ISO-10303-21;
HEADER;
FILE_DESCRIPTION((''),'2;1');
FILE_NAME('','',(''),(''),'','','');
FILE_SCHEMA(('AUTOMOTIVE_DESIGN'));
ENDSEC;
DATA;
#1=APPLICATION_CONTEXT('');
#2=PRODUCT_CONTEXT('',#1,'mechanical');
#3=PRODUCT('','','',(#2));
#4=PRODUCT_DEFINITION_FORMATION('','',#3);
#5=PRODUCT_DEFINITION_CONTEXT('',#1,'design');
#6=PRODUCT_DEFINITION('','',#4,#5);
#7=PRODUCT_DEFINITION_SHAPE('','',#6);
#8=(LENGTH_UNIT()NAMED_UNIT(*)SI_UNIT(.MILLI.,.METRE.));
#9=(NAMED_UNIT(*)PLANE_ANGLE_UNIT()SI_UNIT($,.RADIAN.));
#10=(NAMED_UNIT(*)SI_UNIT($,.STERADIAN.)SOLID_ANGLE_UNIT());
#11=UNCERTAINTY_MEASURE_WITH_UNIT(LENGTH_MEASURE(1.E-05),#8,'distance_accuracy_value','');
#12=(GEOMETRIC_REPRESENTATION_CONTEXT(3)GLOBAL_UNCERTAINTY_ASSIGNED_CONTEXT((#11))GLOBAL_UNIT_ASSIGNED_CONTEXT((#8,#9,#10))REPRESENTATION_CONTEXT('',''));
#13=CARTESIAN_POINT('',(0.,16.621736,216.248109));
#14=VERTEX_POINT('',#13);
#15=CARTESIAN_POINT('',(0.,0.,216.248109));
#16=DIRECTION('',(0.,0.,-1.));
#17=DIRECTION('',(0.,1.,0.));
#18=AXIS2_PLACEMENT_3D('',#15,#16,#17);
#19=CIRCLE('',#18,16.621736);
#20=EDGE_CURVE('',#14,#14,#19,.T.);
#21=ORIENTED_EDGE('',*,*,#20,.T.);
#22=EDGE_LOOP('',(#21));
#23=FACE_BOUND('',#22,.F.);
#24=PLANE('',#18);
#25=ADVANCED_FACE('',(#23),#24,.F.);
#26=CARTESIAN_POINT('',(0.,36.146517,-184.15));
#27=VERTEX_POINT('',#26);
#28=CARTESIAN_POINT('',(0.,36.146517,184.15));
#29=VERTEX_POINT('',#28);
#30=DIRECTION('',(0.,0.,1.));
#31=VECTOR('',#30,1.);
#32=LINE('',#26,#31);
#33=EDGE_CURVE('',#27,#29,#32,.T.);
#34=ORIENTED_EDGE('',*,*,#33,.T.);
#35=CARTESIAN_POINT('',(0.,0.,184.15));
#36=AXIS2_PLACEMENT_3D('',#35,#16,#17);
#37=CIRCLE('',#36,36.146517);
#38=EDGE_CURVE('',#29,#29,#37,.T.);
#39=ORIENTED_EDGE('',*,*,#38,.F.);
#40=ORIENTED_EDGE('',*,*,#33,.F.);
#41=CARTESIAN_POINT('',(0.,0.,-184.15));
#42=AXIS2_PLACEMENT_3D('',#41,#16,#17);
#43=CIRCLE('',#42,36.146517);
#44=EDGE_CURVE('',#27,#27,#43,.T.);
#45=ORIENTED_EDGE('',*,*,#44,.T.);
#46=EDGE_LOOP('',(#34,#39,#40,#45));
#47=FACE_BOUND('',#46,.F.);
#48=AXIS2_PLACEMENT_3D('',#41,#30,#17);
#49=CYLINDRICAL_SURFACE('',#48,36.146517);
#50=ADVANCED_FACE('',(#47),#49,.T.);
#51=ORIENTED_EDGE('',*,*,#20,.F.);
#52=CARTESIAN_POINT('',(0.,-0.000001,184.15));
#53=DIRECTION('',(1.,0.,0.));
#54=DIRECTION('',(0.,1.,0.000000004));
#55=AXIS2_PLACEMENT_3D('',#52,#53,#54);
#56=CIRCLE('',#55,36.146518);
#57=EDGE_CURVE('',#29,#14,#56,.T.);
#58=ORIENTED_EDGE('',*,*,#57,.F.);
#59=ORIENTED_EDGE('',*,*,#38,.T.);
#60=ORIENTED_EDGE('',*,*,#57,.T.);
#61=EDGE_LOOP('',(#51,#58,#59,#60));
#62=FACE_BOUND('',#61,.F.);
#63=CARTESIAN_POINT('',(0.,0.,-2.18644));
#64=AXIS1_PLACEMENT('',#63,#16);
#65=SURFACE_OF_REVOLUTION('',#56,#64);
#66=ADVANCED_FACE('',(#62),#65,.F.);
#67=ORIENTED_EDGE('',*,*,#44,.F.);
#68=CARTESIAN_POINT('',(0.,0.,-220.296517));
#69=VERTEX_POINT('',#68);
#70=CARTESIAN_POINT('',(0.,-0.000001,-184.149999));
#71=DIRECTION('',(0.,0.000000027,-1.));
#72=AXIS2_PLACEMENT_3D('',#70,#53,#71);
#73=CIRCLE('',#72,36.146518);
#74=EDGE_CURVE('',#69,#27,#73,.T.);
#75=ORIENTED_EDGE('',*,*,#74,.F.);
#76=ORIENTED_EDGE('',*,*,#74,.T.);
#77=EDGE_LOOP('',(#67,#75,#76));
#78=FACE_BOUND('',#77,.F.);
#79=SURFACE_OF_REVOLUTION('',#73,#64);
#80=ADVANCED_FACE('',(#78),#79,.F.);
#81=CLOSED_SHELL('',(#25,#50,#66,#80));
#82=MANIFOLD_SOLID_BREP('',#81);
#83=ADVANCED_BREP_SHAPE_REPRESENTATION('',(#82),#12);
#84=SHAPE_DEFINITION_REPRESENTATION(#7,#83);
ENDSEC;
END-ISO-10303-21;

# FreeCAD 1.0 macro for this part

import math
import FreeCAD as App
import Part
import Sketcher

V = App.Vector
Q = App.Units.Quantity

doc = App.newDocument("Part")
body = doc.addObject("PartDesign::Body", "Body")

sketch1 = body.newObject("Sketcher::SketchObject", "Sketch")
sketch1.AttachmentSupport = (doc.getObject("YZ_Plane"), [""])
sketch1.MapMode = "FlatFace"
sketch1.addGeometry([
    Part.ArcOfCircle(Part.Circle(V(0, -184, 0), V(0, 0, 1), 36), math.radians(-90), math.radians(0)),
    Part.LineSegment(V(36, -184, 0), V(36, 184, 0)),
    Part.ArcOfCircle(Part.Circle(V(0, 184, 0), V(0, 0, 1), 36), math.radians(0), math.radians(63)),
    Part.LineSegment(V(17, 216, 0), V(0, 216, 0)),
    Part.LineSegment(V(0, 216, 0), V(0, -220, 0)),
], False)
sketch1.addConstraint([
    Sketcher.Constraint("Tangent", 0, 2, 1, 1),
    Sketcher.Constraint("Tangent", 1, 2, 2, 1),
    Sketcher.Constraint("Coincident", 2, 2, 3, 1),
    Sketcher.Constraint("Coincident", 3, 2, 4, 1),
    Sketcher.Constraint("Coincident", 4, 2, 0, 1),
    Sketcher.Constraint("Vertical", 1),
    Sketcher.Constraint("Horizontal", 3),
    Sketcher.Constraint("Vertical", 4),
    Sketcher.Constraint("Equal", 0, 2),
    Sketcher.Constraint("Symmetric", 0, 3, 2, 3, -1, 1),
    Sketcher.Constraint("PointOnObject", 3, 2, -2),
    Sketcher.Constraint("DistanceY", 1, 1, 1, 2, Q("14.5 in")),
    Sketcher.Constraint("Radius", 0, Q("36.146518 mm")),
    Sketcher.Constraint("DistanceX", 3, 2, 3, 1, Q("16.621736 mm")),
])
revolution = body.newObject("PartDesign::Revolution", "Revolution")
revolution.Profile = sketch1
revolution.ReferenceAxis = (sketch1, ["V_Axis"])
revolution.Angle = 360

doc.recompute()
